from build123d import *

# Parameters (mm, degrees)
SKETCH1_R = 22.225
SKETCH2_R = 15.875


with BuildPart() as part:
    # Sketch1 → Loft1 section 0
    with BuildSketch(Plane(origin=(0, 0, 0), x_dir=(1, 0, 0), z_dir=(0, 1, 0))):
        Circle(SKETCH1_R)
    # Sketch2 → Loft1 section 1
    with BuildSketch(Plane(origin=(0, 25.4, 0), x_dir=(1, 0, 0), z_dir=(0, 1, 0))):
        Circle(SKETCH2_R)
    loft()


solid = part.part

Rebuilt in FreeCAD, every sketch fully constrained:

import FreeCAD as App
import Part
import Sketcher
Q = App.Units.Quantity

doc = App.newDocument("Part")
body = doc.addObject("PartDesign::Body", "Body")

# Sketch on XZ plane
sketch1 = body.newObject("Sketcher::SketchObject", "Sketch")
sketch1.AttachmentSupport = (doc.getObject("XZ_Plane"), [""])
sketch1.MapMode = "FlatFace"
sketch1.addGeometry(Part.Circle(App.Vector(0, 0, 0), App.Vector(0, 0, 1), 22.225), False)
sketch1.addConstraint(Sketcher.Constraint("Coincident", 0, 3, -1, 1))
sketch1.addConstraint(Sketcher.Constraint("Diameter", 0, Q("1.75 in")))

# Sketch on XZ plane
sketch2 = body.newObject("Sketcher::SketchObject", "Sketch001")
sketch2.AttachmentSupport = (doc.getObject("XZ_Plane"), [""])
sketch2.MapMode = "FlatFace"
sketch2.AttachmentOffset = App.Placement(App.Vector(0, 0, -1 * 25.4), App.Rotation())
sketch2.addGeometry(Part.Circle(App.Vector(0, 0, 0), App.Vector(0, 0, 1), 15.875), False)
sketch2.addConstraint(Sketcher.Constraint("Coincident", 0, 3, -1, 1))
sketch2.addConstraint(Sketcher.Constraint("Diameter", 0, Q("1.25 in")))

additiveloft = body.newObject("PartDesign::AdditiveLoft", "AdditiveLoft")
additiveloft.Profile = sketch1
additiveloft.Sections = [sketch2]

doc.recompute()
